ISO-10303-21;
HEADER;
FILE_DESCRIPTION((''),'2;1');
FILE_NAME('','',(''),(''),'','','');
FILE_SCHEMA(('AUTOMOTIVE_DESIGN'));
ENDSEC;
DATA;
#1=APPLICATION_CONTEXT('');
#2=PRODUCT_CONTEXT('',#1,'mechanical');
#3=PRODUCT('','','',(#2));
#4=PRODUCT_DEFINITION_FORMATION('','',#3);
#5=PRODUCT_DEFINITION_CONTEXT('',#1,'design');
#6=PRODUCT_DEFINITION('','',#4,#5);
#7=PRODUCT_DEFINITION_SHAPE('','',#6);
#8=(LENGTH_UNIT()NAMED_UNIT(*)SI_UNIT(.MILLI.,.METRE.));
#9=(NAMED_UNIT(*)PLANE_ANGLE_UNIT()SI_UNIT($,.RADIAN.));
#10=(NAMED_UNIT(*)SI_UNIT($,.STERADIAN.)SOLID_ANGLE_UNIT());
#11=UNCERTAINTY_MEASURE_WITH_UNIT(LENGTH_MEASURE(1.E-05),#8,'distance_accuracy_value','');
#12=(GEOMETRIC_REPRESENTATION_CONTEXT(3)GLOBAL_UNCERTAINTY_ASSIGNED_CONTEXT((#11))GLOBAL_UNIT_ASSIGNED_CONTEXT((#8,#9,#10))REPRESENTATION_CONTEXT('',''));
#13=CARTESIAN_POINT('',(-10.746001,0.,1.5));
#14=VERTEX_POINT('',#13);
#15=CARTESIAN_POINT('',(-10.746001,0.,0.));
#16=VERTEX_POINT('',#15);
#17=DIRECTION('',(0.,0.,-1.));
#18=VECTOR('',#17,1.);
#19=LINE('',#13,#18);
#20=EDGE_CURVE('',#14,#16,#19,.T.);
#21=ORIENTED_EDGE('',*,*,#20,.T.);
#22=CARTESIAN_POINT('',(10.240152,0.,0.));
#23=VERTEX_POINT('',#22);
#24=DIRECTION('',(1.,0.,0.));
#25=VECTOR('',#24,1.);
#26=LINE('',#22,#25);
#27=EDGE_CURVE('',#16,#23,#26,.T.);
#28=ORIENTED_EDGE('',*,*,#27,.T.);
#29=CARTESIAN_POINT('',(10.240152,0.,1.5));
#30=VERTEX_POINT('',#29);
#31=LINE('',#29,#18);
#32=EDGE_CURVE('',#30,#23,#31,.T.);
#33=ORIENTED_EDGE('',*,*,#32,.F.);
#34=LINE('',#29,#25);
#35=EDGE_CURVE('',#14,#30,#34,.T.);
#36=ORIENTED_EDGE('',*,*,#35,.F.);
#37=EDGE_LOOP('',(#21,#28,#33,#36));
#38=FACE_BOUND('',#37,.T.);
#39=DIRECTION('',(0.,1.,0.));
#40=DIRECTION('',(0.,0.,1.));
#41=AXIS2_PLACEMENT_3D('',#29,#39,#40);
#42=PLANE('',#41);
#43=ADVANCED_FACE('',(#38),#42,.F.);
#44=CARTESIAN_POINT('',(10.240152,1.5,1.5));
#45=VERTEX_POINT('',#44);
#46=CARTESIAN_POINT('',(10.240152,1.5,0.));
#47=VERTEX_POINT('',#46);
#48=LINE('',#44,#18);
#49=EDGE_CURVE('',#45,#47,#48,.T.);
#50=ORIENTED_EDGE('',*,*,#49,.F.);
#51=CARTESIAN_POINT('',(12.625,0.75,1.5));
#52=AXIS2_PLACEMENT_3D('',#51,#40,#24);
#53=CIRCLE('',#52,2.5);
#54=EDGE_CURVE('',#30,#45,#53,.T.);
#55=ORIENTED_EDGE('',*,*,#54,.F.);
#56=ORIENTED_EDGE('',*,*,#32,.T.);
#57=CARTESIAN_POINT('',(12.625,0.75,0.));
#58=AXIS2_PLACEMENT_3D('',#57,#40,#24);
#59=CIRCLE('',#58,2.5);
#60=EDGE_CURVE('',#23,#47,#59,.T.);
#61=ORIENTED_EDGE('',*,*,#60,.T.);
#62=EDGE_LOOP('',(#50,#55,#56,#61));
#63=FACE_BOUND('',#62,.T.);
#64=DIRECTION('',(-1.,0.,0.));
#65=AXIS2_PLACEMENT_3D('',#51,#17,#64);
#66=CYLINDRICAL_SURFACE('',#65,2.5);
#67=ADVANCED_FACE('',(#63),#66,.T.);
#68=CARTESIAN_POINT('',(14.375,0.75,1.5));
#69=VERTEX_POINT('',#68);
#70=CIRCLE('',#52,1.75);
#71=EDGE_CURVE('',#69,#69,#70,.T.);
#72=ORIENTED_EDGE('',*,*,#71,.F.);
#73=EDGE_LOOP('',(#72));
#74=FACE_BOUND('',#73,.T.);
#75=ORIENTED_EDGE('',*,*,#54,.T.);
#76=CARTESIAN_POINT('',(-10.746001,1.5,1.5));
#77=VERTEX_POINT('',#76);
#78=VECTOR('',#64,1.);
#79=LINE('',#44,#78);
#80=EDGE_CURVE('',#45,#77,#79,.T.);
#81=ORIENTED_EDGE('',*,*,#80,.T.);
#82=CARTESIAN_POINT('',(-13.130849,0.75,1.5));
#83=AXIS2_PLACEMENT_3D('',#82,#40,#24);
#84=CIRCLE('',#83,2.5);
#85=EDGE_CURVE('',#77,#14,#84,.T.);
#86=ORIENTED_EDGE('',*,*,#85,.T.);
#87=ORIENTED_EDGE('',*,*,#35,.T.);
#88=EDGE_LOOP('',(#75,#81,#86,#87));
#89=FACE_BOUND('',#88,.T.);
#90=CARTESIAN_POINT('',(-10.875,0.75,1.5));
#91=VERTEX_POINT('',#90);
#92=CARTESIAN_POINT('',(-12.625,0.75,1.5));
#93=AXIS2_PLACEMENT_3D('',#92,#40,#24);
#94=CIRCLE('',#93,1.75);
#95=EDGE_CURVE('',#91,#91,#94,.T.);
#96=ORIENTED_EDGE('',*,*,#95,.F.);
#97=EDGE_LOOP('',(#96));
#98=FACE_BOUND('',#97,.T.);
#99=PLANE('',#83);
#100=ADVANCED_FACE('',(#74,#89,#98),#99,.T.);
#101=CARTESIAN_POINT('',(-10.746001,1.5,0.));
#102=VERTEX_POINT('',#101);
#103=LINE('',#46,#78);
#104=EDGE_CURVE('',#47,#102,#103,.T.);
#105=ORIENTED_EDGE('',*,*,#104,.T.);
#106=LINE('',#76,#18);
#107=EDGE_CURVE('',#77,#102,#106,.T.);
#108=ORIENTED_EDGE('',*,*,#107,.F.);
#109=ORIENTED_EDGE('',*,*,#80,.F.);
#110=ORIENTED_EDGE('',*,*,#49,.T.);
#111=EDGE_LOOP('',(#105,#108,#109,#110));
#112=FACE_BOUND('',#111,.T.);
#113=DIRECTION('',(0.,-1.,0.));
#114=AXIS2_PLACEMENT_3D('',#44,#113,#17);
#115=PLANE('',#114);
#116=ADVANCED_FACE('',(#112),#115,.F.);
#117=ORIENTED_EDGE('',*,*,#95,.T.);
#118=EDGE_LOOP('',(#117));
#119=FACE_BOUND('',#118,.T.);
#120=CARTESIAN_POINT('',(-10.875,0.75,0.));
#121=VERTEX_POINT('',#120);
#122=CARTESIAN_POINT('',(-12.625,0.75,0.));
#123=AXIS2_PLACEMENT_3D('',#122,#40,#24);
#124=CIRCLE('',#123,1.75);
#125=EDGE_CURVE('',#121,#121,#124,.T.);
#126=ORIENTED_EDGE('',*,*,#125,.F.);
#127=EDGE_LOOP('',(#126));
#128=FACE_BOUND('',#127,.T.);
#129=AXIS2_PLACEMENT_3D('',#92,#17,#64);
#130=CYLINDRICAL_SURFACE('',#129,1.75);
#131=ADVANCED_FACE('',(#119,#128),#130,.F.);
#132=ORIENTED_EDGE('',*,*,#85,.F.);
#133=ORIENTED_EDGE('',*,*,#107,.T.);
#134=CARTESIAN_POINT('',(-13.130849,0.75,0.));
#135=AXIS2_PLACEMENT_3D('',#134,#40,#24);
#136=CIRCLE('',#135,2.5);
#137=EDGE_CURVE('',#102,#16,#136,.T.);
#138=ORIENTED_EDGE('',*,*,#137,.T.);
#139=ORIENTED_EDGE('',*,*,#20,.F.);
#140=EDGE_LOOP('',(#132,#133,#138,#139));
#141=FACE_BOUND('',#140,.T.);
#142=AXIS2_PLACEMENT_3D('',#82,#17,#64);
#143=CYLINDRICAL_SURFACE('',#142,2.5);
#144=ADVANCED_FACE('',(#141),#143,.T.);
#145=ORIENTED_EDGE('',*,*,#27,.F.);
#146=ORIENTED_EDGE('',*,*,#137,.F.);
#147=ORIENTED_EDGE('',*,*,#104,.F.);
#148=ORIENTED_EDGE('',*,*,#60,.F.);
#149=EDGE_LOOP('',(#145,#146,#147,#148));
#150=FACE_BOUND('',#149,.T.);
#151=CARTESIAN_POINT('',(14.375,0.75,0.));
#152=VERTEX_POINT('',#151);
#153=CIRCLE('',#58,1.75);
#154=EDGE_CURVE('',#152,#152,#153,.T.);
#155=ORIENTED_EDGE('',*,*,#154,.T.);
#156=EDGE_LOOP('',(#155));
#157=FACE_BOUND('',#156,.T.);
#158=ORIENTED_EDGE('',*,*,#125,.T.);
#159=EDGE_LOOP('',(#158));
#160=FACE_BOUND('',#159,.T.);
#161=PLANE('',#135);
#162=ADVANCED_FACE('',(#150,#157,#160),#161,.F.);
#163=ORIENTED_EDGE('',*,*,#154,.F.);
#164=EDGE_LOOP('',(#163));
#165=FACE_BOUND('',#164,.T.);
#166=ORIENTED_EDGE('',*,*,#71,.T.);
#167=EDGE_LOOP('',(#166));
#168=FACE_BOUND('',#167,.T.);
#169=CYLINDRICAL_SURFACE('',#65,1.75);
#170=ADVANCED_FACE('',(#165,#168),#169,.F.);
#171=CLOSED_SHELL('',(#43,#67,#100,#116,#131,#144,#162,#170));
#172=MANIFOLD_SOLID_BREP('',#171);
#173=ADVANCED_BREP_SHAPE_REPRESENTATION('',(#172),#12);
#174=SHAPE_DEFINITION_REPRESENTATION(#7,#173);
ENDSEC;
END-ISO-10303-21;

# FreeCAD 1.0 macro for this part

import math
import FreeCAD as App
import Part
import Sketcher

V = App.Vector

doc = App.newDocument("Part")
params = doc.addObject("Spreadsheet::Sheet", "Params")
for row, (alias, value) in enumerate([
    ("sketch1_diameter", "3.5 mm"),
    ("sketch1_radius", "2.5 mm"),
    ("pad1_length", "1.5 mm"),
], start=1):
    params.set(f"A{row}", alias)
    params.set(f"B{row}", "=" + value)
    params.setAlias(f"B{row}", alias)

body = doc.addObject("PartDesign::Body", "Body")

# Sketch on XY plane
sketch1 = body.newObject("Sketcher::SketchObject", "Sketch")
sketch1.AttachmentSupport = (doc.getObject("XY_Plane"), [""])
sketch1.MapMode = "FlatFace"
sketch1.addGeometry([
    Part.LineSegment(V(10.240152, 1.5, 0), V(-10.746001, 1.5, 0)),  # 0
    Part.ArcOfCircle(Part.Circle(V(-13.130849, 0.75, 0), V(0, 0, 1), 2.5), math.radians(17.457603), math.radians(342.542397)),  # 1
    Part.LineSegment(V(-10.746001, 0, 0), V(10.240152, 0, 0)),  # 2
    Part.ArcOfCircle(Part.Circle(V(12.625, 0.75, 0), V(0, 0, 1), 2.5), math.radians(-162.542397), math.radians(162.542397)),  # 3
    Part.Circle(V(-12.625, 0.75, 0), V(0, 0, 1), 1.75),  # 4
    Part.Circle(V(12.625, 0.75, 0), V(0, 0, 1), 1.75),  # 5
], False)
sketch1.addConstraint([
    Sketcher.Constraint("Coincident", 0, 2, 1, 1),
    Sketcher.Constraint("Coincident", 1, 2, 2, 1),
    Sketcher.Constraint("Coincident", 2, 2, 3, 1),
    Sketcher.Constraint("Coincident", 3, 2, 0, 1),
    Sketcher.Constraint("Horizontal", 0),
    Sketcher.Constraint("Horizontal", 2),
    Sketcher.Constraint("Coincident", 5, 3, 3, 3),
    Sketcher.Constraint("Equal", 1, 3),
    Sketcher.Constraint("Equal", 4, 5),
    Sketcher.Constraint("Symmetric", 3, 3, 4, 3, -2),
    Sketcher.Constraint("PointOnObject", 1, 2, -1),
    Sketcher.Constraint("Horizontal", 1, 3, 3, 3),
    Sketcher.Constraint("Vertical", 0, 2, 1, 2),
    Sketcher.Constraint("Diameter", 4, 3.5),
    Sketcher.Constraint("Radius", 1, 2.5),
    Sketcher.Constraint("DistanceY", -1, 1, 0, 2, 1.5),
    Sketcher.Constraint("DistanceX", 4, 3, 3, 3, 25.25),
    Sketcher.Constraint("DistanceX", 0, 2, -1, 1, 10.746001),
])
sketch1.setExpression("Constraints[13]", "Params.sketch1_diameter")
sketch1.setExpression("Constraints[14]", "Params.sketch1_radius")
pad1 = body.newObject("PartDesign::Pad", "Pad")
pad1.Profile = sketch1
pad1.setExpression("Length", "Params.pad1_length")

doc.recompute()
